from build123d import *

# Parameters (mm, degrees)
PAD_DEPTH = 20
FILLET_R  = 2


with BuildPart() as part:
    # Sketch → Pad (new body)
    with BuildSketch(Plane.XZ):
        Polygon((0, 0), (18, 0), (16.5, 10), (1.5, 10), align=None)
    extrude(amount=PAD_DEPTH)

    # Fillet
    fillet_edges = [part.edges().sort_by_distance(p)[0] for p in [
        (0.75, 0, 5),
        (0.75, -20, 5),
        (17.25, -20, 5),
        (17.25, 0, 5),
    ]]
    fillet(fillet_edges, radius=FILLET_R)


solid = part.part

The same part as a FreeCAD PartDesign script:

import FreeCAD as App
import Part
import Sketcher
from FreeCAD import Vector
Q = App.Units.Quantity


def edges_at(feature, points):
    """Names of the edges that pass closest to the given points."""
    edges = feature.Shape.Edges
    near = lambda p: min(range(len(edges)), key=lambda i: edges[i].distToShape(Part.Vertex(*p))[0])
    return sorted({f"Edge{near(p) + 1}" for p in points})


def add_polygon(sketch, points):
    """Adds a closed chain of lines whose ends are joined by coincident constraints."""
    first, n = sketch.GeometryCount, len(points)
    for a, b in zip(points, points[1:] + points[:1]):
        sketch.addGeometry(Part.LineSegment(App.Vector(*a, 0), App.Vector(*b, 0)), False)
    for i in range(n):
        sketch.addConstraint(Sketcher.Constraint("Coincident", first + i, 2, first + (i + 1) % n, 1))

doc = App.newDocument("Part")
body = doc.addObject("PartDesign::Body", "Body")

sketch1 = body.newObject("Sketcher::SketchObject", "Sketch")
sketch1.AttachmentSupport = (doc.getObject("XZ_Plane"), [""])
sketch1.MapMode = "FlatFace"
add_polygon(sketch1, [(0, 0), (18, 0), (16.5, 10), (1.5, 10)])
sketch1.addConstraint(Sketcher.Constraint("Horizontal", 0))
sketch1.addConstraint(Sketcher.Constraint("Horizontal", 2))
sketch1.addConstraint(Sketcher.Constraint("Coincident", 3, 2, -1, 1))
sketch1.addConstraint(Sketcher.Constraint("Equal", 1, 3))
sketch1.addConstraint(Sketcher.Constraint("DistanceX", 0, 1, 0, 2, Q("18 mm")))
sketch1.addConstraint(Sketcher.Constraint("DistanceX", 2, 2, 2, 1, Q("15 mm")))
sketch1.addConstraint(Sketcher.Constraint("DistanceY", -1, 1, 1, 2, Q("10 mm")))
pad1 = body.newObject("PartDesign::Pad", "Pad")
pad1.Profile = sketch1
pad1.Length = 20
doc.recompute()

fillet = body.newObject("PartDesign::Fillet", "Fillet")
fillet.Base = (pad1, edges_at(pad1, [
    (0.75, 0, 5),
    (0.75, -20, 5),
    (17.25, -20, 5),
    (17.25, 0, 5),
]))
fillet.Radius = 2

doc.recompute()
